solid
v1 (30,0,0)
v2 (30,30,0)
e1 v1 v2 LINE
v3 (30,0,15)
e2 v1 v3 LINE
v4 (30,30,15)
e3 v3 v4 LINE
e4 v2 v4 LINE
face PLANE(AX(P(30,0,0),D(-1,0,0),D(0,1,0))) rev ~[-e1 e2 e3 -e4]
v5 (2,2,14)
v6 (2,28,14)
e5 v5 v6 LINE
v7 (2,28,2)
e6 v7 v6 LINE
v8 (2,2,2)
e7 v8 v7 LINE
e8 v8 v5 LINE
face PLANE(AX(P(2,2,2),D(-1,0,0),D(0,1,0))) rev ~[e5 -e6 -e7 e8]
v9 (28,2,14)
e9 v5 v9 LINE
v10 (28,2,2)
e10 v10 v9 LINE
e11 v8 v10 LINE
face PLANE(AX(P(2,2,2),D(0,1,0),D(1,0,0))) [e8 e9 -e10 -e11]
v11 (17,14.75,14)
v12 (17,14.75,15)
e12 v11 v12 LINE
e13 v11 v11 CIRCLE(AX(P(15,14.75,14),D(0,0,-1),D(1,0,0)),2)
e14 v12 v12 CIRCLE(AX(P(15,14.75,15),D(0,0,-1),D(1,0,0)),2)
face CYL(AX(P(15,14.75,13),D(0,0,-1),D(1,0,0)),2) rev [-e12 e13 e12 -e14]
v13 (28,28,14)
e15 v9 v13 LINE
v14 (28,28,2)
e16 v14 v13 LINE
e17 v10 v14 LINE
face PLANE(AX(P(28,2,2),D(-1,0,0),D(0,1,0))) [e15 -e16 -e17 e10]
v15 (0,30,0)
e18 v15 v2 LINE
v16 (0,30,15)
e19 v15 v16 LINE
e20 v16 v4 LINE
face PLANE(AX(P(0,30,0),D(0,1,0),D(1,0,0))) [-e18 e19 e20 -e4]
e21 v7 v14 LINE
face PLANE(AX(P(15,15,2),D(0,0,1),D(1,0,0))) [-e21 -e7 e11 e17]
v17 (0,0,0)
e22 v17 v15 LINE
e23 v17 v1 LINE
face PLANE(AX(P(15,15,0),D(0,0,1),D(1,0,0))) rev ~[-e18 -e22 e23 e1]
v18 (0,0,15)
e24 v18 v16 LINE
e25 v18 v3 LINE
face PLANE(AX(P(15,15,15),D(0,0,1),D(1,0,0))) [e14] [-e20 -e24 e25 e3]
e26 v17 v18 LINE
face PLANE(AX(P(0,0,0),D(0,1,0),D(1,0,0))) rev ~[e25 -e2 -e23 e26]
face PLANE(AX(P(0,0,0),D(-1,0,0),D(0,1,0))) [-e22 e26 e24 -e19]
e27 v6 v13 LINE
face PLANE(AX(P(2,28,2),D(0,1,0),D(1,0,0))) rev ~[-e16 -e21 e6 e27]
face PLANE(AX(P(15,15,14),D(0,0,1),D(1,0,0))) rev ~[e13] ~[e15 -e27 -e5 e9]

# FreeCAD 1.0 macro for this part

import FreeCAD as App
import Part
import Sketcher
from FreeCAD import Vector
Q = App.Units.Quantity


def add_polygon(sketch, points):
    """Adds a closed chain of lines whose ends are joined by coincident constraints."""
    first, n = sketch.GeometryCount, len(points)
    for a, b in zip(points, points[1:] + points[:1]):
        sketch.addGeometry(Part.LineSegment(App.Vector(*a, 0), App.Vector(*b, 0)), False)
    for i in range(n):
        sketch.addConstraint(Sketcher.Constraint("Coincident", first + i, 2, first + (i + 1) % n, 1))

doc = App.newDocument("Part")
params = doc.addObject("Spreadsheet::Sheet", "Params")
for row, (alias, value) in enumerate([
    ("sketch1_diameter", "4 mm"),
    ("pad1_length", "3 mm"),
    ("sketch2_width", "26 mm"),
    ("pad2_length", "12 mm"),
    ("sketch3_width", "30 mm"),
    ("pad3_length", "15 mm"),
], start=1):
    params.set(f"A{row}", alias)
    params.set(f"B{row}", "=" + value)
    params.setAlias(f"B{row}", alias)

body = doc.addObject("PartDesign::Body", "Body")

# Sketch on XY plane
sketch1 = body.newObject("Sketcher::SketchObject", "Sketch")
sketch1.AttachmentSupport = (doc.getObject("XY_Plane"), [""])
sketch1.MapMode = "FlatFace"
sketch1.AttachmentOffset = App.Placement(Vector(0, 0, 13), App.Rotation())
sketch1.addGeometry(Part.Circle(Vector(15, 14.8, 0), Vector(0, 0, 1), 2), False)
sketch1.addConstraint(Sketcher.Constraint("Diameter", 0, Q("4 mm")))
sketch1.addConstraint(Sketcher.Constraint("DistanceX", -1, 1, 0, 3, Q("15 mm")))
sketch1.addConstraint(Sketcher.Constraint("DistanceY", -1, 1, 0, 3, Q("14.75 mm")))
sketch1.setExpression("Constraints[0]", "Params.sketch1_diameter")
pad1 = body.newObject("PartDesign::Pad", "Pad")
pad1.Profile = sketch1
pad1.setExpression("Length", "Params.pad1_length")
body2 = doc.addObject("PartDesign::Body", "Body001")

# Sketch on XY plane
sketch2 = body2.newObject("Sketcher::SketchObject", "Sketch001")
sketch2.AttachmentSupport = (doc.getObject("XY_Plane001"), [""])
sketch2.MapMode = "FlatFace"
sketch2.AttachmentOffset = App.Placement(Vector(0, 0, 2), App.Rotation())
add_polygon(sketch2, [(2, 28), (2, 2), (28, 2), (28, 28)])  # lines 0-3
sketch2.addConstraint(Sketcher.Constraint("Vertical", 0))
sketch2.addConstraint(Sketcher.Constraint("Horizontal", 1))
sketch2.addConstraint(Sketcher.Constraint("Vertical", 2))
sketch2.addConstraint(Sketcher.Constraint("Horizontal", 3))
sketch2.addConstraint(Sketcher.Constraint("Equal", 3, 0))
sketch2.addConstraint(Sketcher.Constraint("DistanceX", 1, 1, 1, 2, Q("26 mm")))
sketch2.addConstraint(Sketcher.Constraint("DistanceX", -1, 1, 0, 2, Q("2 mm")))
sketch2.addConstraint(Sketcher.Constraint("DistanceY", -1, 1, 0, 2, Q("2 mm")))
sketch2.setExpression("Constraints[9]", "Params.sketch2_width")
pad2 = body2.newObject("PartDesign::Pad", "Pad001")
pad2.Profile = sketch2
pad2.setExpression("Length", "Params.pad2_length")
body3 = doc.addObject("PartDesign::Body", "Body002")

# Sketch on XY plane
sketch3 = body3.newObject("Sketcher::SketchObject", "Sketch002")
sketch3.AttachmentSupport = (doc.getObject("XY_Plane002"), [""])
sketch3.MapMode = "FlatFace"
add_polygon(sketch3, [(0, 30), (0, 0), (30, 0), (30, 30)])  # lines 0-3
sketch3.addConstraint(Sketcher.Constraint("Vertical", 0))
sketch3.addConstraint(Sketcher.Constraint("Horizontal", 1))
sketch3.addConstraint(Sketcher.Constraint("Vertical", 2))
sketch3.addConstraint(Sketcher.Constraint("Horizontal", 3))
sketch3.addConstraint(Sketcher.Constraint("Coincident", 0, 2, -1, 1))
sketch3.addConstraint(Sketcher.Constraint("Equal", 3, 0))
sketch3.addConstraint(Sketcher.Constraint("DistanceX", 1, 1, 1, 2, Q("30 mm")))
sketch3.setExpression("Constraints[10]", "Params.sketch3_width")
pad3 = body3.newObject("PartDesign::Pad", "Pad002")
pad3.Profile = sketch3
pad3.setExpression("Length", "Params.pad3_length")
doc.recompute()

boolean = body3.newObject("PartDesign::Boolean", "Boolean")
boolean.Type = "Cut"
boolean.addObjects([body2])
doc.recompute()

boolean2 = body3.newObject("PartDesign::Boolean", "Boolean001")
boolean2.Type = "Cut"
boolean2.addObjects([body])

doc.recompute()
